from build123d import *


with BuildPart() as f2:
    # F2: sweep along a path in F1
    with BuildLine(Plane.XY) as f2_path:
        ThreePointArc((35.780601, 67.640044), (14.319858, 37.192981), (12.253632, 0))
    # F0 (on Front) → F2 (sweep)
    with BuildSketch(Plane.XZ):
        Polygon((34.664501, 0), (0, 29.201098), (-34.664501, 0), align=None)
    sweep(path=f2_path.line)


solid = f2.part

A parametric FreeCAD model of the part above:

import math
import FreeCAD as App
import Part
import Sketcher
from FreeCAD import Vector
Q = App.Units.Quantity

doc = App.newDocument("Part")
body = doc.addObject("PartDesign::Body", "Body")

sketch1 = body.newObject("Sketcher::SketchObject", "Sketch")
sketch1.AttachmentSupport = (doc.getObject("XZ_Plane"), [""])
sketch1.MapMode = "FlatFace"
sketch1.addGeometry(Part.LineSegment(Vector(34.664501, 0, 0), Vector(0, 29.201098, 0)), False)
sketch1.addGeometry(Part.LineSegment(Vector(0, 29.201098, 0), Vector(-34.664501, 0, 0)), False)
sketch1.addGeometry(Part.LineSegment(Vector(-34.664501, 0, 0), Vector(34.664501, 0, 0)), False)
sketch1.addConstraint(Sketcher.Constraint("Coincident", 0, 2, 1, 1))
sketch1.addConstraint(Sketcher.Constraint("Coincident", 1, 2, 2, 1))
sketch1.addConstraint(Sketcher.Constraint("Coincident", 2, 2, 0, 1))
sketch1.addConstraint(Sketcher.Constraint("Horizontal", 2))
sketch1.addConstraint(Sketcher.Constraint("Symmetric", 1, 2, 2, 2, -1, 1))
sketch1.addConstraint(Sketcher.Constraint("PointOnObject", 0, 2, -2))
sketch1.addConstraint(Sketcher.Constraint("DistanceY", -1, 1, 0, 2, Q("29.201098 mm")))
sketch1.addConstraint(Sketcher.Constraint("DistanceX", 1, 2, -1, 1, Q("34.664501 mm")))

sketch2 = body.newObject("Sketcher::SketchObject", "Sketch001")
sketch2.AttachmentSupport = (doc.getObject("XY_Plane"), [""])
sketch2.MapMode = "FlatFace"
sketch2.addGeometry(Part.ArcOfCircle(Part.Circle(Vector(78.143603, 14.99342, 0), Vector(0, 0, 1), 67.574337), math.radians(128.822487), math.radians(192.819501)), False)
sketch2.addConstraint(Sketcher.Constraint("PointOnObject", 0, 2, -1))
sketch2.addConstraint(Sketcher.Constraint("Radius", 0, Q("67.574337 mm")))
sketch2.addConstraint(Sketcher.Constraint("DistanceX", -1, 1, 0, 1, Q("35.780601 mm")))
sketch2.addConstraint(Sketcher.Constraint("DistanceY", -1, 1, 0, 3, Q("14.99342 mm")))
sketch2.addConstraint(Sketcher.Constraint("DistanceX", 0, 2, 0, 1, Q("23.526969 mm")))
doc.recompute()

additivepipe = body.newObject("PartDesign::AdditivePipe", "AdditivePipe")
additivepipe.Profile = sketch1
additivepipe.Spine = (sketch2, ["Edge1"])

doc.recompute()
